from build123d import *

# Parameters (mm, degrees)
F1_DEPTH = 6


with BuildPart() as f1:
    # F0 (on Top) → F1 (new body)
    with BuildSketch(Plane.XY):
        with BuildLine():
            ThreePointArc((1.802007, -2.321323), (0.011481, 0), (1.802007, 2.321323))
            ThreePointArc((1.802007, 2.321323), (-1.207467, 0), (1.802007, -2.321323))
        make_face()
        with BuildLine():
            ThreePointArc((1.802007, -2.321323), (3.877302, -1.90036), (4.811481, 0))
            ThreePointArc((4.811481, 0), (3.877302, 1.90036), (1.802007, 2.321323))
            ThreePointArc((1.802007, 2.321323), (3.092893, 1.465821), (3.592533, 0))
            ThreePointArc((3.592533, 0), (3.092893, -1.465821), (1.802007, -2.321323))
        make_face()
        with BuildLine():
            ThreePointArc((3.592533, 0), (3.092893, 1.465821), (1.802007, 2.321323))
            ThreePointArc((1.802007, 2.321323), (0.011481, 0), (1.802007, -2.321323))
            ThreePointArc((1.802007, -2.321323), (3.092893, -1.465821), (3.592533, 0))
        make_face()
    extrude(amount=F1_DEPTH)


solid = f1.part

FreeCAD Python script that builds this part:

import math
import FreeCAD as App
import Part
import Sketcher

V = App.Vector
Q = App.Units.Quantity

doc = App.newDocument("Part")
body = doc.addObject("PartDesign::Body", "Body")

# Sketch on XY plane
sketch1 = body.newObject("Sketcher::SketchObject", "Sketch")
sketch1.AttachmentSupport = (doc.getObject("XY_Plane"), [""])
sketch1.MapMode = "FlatFace"
sketch1.addGeometry(Part.ArcOfCircle(Part.Circle(V(1.2, 0, 0), V(0, 0, 1), 2.4), math.radians(75), math.radians(285)), False)
sketch1.addGeometry(Part.ArcOfCircle(Part.Circle(V(2.4, 0, 0), V(0, 0, 1), 2.4), math.radians(-105), math.radians(0)), False)
sketch1.addGeometry(Part.ArcOfCircle(Part.Circle(V(2.4, 0, 0), V(0, 0, 1), 2.4), math.radians(0), math.radians(105)), False)
sketch1.addConstraint(Sketcher.Constraint("Coincident", 0, 2, 1, 1))
sketch1.addConstraint(Sketcher.Constraint("Tangent", 1, 2, 2, 1))
sketch1.addConstraint(Sketcher.Constraint("Coincident", 2, 2, 0, 1))
sketch1.addConstraint(Sketcher.Constraint("Equal", 0, 1))
sketch1.addConstraint(Sketcher.Constraint("Equal", 1, 2))
sketch1.addConstraint(Sketcher.Constraint("Symmetric", 0, 2, 2, 2, -1))
sketch1.addConstraint(Sketcher.Constraint("PointOnObject", 1, 2, -1))
sketch1.addConstraint(Sketcher.Constraint("Radius", 0, Q("2.4 mm")))
sketch1.addConstraint(Sketcher.Constraint("DistanceX", -1, 1, 1, 3, Q("2.411481 mm")))
sketch1.addConstraint(Sketcher.Constraint("DistanceX", 0, 3, 1, 3, Q("1.218948 mm")))
pad1 = body.newObject("PartDesign::Pad", "Pad")
pad1.Profile = sketch1
pad1.Length = 6

doc.recompute()
